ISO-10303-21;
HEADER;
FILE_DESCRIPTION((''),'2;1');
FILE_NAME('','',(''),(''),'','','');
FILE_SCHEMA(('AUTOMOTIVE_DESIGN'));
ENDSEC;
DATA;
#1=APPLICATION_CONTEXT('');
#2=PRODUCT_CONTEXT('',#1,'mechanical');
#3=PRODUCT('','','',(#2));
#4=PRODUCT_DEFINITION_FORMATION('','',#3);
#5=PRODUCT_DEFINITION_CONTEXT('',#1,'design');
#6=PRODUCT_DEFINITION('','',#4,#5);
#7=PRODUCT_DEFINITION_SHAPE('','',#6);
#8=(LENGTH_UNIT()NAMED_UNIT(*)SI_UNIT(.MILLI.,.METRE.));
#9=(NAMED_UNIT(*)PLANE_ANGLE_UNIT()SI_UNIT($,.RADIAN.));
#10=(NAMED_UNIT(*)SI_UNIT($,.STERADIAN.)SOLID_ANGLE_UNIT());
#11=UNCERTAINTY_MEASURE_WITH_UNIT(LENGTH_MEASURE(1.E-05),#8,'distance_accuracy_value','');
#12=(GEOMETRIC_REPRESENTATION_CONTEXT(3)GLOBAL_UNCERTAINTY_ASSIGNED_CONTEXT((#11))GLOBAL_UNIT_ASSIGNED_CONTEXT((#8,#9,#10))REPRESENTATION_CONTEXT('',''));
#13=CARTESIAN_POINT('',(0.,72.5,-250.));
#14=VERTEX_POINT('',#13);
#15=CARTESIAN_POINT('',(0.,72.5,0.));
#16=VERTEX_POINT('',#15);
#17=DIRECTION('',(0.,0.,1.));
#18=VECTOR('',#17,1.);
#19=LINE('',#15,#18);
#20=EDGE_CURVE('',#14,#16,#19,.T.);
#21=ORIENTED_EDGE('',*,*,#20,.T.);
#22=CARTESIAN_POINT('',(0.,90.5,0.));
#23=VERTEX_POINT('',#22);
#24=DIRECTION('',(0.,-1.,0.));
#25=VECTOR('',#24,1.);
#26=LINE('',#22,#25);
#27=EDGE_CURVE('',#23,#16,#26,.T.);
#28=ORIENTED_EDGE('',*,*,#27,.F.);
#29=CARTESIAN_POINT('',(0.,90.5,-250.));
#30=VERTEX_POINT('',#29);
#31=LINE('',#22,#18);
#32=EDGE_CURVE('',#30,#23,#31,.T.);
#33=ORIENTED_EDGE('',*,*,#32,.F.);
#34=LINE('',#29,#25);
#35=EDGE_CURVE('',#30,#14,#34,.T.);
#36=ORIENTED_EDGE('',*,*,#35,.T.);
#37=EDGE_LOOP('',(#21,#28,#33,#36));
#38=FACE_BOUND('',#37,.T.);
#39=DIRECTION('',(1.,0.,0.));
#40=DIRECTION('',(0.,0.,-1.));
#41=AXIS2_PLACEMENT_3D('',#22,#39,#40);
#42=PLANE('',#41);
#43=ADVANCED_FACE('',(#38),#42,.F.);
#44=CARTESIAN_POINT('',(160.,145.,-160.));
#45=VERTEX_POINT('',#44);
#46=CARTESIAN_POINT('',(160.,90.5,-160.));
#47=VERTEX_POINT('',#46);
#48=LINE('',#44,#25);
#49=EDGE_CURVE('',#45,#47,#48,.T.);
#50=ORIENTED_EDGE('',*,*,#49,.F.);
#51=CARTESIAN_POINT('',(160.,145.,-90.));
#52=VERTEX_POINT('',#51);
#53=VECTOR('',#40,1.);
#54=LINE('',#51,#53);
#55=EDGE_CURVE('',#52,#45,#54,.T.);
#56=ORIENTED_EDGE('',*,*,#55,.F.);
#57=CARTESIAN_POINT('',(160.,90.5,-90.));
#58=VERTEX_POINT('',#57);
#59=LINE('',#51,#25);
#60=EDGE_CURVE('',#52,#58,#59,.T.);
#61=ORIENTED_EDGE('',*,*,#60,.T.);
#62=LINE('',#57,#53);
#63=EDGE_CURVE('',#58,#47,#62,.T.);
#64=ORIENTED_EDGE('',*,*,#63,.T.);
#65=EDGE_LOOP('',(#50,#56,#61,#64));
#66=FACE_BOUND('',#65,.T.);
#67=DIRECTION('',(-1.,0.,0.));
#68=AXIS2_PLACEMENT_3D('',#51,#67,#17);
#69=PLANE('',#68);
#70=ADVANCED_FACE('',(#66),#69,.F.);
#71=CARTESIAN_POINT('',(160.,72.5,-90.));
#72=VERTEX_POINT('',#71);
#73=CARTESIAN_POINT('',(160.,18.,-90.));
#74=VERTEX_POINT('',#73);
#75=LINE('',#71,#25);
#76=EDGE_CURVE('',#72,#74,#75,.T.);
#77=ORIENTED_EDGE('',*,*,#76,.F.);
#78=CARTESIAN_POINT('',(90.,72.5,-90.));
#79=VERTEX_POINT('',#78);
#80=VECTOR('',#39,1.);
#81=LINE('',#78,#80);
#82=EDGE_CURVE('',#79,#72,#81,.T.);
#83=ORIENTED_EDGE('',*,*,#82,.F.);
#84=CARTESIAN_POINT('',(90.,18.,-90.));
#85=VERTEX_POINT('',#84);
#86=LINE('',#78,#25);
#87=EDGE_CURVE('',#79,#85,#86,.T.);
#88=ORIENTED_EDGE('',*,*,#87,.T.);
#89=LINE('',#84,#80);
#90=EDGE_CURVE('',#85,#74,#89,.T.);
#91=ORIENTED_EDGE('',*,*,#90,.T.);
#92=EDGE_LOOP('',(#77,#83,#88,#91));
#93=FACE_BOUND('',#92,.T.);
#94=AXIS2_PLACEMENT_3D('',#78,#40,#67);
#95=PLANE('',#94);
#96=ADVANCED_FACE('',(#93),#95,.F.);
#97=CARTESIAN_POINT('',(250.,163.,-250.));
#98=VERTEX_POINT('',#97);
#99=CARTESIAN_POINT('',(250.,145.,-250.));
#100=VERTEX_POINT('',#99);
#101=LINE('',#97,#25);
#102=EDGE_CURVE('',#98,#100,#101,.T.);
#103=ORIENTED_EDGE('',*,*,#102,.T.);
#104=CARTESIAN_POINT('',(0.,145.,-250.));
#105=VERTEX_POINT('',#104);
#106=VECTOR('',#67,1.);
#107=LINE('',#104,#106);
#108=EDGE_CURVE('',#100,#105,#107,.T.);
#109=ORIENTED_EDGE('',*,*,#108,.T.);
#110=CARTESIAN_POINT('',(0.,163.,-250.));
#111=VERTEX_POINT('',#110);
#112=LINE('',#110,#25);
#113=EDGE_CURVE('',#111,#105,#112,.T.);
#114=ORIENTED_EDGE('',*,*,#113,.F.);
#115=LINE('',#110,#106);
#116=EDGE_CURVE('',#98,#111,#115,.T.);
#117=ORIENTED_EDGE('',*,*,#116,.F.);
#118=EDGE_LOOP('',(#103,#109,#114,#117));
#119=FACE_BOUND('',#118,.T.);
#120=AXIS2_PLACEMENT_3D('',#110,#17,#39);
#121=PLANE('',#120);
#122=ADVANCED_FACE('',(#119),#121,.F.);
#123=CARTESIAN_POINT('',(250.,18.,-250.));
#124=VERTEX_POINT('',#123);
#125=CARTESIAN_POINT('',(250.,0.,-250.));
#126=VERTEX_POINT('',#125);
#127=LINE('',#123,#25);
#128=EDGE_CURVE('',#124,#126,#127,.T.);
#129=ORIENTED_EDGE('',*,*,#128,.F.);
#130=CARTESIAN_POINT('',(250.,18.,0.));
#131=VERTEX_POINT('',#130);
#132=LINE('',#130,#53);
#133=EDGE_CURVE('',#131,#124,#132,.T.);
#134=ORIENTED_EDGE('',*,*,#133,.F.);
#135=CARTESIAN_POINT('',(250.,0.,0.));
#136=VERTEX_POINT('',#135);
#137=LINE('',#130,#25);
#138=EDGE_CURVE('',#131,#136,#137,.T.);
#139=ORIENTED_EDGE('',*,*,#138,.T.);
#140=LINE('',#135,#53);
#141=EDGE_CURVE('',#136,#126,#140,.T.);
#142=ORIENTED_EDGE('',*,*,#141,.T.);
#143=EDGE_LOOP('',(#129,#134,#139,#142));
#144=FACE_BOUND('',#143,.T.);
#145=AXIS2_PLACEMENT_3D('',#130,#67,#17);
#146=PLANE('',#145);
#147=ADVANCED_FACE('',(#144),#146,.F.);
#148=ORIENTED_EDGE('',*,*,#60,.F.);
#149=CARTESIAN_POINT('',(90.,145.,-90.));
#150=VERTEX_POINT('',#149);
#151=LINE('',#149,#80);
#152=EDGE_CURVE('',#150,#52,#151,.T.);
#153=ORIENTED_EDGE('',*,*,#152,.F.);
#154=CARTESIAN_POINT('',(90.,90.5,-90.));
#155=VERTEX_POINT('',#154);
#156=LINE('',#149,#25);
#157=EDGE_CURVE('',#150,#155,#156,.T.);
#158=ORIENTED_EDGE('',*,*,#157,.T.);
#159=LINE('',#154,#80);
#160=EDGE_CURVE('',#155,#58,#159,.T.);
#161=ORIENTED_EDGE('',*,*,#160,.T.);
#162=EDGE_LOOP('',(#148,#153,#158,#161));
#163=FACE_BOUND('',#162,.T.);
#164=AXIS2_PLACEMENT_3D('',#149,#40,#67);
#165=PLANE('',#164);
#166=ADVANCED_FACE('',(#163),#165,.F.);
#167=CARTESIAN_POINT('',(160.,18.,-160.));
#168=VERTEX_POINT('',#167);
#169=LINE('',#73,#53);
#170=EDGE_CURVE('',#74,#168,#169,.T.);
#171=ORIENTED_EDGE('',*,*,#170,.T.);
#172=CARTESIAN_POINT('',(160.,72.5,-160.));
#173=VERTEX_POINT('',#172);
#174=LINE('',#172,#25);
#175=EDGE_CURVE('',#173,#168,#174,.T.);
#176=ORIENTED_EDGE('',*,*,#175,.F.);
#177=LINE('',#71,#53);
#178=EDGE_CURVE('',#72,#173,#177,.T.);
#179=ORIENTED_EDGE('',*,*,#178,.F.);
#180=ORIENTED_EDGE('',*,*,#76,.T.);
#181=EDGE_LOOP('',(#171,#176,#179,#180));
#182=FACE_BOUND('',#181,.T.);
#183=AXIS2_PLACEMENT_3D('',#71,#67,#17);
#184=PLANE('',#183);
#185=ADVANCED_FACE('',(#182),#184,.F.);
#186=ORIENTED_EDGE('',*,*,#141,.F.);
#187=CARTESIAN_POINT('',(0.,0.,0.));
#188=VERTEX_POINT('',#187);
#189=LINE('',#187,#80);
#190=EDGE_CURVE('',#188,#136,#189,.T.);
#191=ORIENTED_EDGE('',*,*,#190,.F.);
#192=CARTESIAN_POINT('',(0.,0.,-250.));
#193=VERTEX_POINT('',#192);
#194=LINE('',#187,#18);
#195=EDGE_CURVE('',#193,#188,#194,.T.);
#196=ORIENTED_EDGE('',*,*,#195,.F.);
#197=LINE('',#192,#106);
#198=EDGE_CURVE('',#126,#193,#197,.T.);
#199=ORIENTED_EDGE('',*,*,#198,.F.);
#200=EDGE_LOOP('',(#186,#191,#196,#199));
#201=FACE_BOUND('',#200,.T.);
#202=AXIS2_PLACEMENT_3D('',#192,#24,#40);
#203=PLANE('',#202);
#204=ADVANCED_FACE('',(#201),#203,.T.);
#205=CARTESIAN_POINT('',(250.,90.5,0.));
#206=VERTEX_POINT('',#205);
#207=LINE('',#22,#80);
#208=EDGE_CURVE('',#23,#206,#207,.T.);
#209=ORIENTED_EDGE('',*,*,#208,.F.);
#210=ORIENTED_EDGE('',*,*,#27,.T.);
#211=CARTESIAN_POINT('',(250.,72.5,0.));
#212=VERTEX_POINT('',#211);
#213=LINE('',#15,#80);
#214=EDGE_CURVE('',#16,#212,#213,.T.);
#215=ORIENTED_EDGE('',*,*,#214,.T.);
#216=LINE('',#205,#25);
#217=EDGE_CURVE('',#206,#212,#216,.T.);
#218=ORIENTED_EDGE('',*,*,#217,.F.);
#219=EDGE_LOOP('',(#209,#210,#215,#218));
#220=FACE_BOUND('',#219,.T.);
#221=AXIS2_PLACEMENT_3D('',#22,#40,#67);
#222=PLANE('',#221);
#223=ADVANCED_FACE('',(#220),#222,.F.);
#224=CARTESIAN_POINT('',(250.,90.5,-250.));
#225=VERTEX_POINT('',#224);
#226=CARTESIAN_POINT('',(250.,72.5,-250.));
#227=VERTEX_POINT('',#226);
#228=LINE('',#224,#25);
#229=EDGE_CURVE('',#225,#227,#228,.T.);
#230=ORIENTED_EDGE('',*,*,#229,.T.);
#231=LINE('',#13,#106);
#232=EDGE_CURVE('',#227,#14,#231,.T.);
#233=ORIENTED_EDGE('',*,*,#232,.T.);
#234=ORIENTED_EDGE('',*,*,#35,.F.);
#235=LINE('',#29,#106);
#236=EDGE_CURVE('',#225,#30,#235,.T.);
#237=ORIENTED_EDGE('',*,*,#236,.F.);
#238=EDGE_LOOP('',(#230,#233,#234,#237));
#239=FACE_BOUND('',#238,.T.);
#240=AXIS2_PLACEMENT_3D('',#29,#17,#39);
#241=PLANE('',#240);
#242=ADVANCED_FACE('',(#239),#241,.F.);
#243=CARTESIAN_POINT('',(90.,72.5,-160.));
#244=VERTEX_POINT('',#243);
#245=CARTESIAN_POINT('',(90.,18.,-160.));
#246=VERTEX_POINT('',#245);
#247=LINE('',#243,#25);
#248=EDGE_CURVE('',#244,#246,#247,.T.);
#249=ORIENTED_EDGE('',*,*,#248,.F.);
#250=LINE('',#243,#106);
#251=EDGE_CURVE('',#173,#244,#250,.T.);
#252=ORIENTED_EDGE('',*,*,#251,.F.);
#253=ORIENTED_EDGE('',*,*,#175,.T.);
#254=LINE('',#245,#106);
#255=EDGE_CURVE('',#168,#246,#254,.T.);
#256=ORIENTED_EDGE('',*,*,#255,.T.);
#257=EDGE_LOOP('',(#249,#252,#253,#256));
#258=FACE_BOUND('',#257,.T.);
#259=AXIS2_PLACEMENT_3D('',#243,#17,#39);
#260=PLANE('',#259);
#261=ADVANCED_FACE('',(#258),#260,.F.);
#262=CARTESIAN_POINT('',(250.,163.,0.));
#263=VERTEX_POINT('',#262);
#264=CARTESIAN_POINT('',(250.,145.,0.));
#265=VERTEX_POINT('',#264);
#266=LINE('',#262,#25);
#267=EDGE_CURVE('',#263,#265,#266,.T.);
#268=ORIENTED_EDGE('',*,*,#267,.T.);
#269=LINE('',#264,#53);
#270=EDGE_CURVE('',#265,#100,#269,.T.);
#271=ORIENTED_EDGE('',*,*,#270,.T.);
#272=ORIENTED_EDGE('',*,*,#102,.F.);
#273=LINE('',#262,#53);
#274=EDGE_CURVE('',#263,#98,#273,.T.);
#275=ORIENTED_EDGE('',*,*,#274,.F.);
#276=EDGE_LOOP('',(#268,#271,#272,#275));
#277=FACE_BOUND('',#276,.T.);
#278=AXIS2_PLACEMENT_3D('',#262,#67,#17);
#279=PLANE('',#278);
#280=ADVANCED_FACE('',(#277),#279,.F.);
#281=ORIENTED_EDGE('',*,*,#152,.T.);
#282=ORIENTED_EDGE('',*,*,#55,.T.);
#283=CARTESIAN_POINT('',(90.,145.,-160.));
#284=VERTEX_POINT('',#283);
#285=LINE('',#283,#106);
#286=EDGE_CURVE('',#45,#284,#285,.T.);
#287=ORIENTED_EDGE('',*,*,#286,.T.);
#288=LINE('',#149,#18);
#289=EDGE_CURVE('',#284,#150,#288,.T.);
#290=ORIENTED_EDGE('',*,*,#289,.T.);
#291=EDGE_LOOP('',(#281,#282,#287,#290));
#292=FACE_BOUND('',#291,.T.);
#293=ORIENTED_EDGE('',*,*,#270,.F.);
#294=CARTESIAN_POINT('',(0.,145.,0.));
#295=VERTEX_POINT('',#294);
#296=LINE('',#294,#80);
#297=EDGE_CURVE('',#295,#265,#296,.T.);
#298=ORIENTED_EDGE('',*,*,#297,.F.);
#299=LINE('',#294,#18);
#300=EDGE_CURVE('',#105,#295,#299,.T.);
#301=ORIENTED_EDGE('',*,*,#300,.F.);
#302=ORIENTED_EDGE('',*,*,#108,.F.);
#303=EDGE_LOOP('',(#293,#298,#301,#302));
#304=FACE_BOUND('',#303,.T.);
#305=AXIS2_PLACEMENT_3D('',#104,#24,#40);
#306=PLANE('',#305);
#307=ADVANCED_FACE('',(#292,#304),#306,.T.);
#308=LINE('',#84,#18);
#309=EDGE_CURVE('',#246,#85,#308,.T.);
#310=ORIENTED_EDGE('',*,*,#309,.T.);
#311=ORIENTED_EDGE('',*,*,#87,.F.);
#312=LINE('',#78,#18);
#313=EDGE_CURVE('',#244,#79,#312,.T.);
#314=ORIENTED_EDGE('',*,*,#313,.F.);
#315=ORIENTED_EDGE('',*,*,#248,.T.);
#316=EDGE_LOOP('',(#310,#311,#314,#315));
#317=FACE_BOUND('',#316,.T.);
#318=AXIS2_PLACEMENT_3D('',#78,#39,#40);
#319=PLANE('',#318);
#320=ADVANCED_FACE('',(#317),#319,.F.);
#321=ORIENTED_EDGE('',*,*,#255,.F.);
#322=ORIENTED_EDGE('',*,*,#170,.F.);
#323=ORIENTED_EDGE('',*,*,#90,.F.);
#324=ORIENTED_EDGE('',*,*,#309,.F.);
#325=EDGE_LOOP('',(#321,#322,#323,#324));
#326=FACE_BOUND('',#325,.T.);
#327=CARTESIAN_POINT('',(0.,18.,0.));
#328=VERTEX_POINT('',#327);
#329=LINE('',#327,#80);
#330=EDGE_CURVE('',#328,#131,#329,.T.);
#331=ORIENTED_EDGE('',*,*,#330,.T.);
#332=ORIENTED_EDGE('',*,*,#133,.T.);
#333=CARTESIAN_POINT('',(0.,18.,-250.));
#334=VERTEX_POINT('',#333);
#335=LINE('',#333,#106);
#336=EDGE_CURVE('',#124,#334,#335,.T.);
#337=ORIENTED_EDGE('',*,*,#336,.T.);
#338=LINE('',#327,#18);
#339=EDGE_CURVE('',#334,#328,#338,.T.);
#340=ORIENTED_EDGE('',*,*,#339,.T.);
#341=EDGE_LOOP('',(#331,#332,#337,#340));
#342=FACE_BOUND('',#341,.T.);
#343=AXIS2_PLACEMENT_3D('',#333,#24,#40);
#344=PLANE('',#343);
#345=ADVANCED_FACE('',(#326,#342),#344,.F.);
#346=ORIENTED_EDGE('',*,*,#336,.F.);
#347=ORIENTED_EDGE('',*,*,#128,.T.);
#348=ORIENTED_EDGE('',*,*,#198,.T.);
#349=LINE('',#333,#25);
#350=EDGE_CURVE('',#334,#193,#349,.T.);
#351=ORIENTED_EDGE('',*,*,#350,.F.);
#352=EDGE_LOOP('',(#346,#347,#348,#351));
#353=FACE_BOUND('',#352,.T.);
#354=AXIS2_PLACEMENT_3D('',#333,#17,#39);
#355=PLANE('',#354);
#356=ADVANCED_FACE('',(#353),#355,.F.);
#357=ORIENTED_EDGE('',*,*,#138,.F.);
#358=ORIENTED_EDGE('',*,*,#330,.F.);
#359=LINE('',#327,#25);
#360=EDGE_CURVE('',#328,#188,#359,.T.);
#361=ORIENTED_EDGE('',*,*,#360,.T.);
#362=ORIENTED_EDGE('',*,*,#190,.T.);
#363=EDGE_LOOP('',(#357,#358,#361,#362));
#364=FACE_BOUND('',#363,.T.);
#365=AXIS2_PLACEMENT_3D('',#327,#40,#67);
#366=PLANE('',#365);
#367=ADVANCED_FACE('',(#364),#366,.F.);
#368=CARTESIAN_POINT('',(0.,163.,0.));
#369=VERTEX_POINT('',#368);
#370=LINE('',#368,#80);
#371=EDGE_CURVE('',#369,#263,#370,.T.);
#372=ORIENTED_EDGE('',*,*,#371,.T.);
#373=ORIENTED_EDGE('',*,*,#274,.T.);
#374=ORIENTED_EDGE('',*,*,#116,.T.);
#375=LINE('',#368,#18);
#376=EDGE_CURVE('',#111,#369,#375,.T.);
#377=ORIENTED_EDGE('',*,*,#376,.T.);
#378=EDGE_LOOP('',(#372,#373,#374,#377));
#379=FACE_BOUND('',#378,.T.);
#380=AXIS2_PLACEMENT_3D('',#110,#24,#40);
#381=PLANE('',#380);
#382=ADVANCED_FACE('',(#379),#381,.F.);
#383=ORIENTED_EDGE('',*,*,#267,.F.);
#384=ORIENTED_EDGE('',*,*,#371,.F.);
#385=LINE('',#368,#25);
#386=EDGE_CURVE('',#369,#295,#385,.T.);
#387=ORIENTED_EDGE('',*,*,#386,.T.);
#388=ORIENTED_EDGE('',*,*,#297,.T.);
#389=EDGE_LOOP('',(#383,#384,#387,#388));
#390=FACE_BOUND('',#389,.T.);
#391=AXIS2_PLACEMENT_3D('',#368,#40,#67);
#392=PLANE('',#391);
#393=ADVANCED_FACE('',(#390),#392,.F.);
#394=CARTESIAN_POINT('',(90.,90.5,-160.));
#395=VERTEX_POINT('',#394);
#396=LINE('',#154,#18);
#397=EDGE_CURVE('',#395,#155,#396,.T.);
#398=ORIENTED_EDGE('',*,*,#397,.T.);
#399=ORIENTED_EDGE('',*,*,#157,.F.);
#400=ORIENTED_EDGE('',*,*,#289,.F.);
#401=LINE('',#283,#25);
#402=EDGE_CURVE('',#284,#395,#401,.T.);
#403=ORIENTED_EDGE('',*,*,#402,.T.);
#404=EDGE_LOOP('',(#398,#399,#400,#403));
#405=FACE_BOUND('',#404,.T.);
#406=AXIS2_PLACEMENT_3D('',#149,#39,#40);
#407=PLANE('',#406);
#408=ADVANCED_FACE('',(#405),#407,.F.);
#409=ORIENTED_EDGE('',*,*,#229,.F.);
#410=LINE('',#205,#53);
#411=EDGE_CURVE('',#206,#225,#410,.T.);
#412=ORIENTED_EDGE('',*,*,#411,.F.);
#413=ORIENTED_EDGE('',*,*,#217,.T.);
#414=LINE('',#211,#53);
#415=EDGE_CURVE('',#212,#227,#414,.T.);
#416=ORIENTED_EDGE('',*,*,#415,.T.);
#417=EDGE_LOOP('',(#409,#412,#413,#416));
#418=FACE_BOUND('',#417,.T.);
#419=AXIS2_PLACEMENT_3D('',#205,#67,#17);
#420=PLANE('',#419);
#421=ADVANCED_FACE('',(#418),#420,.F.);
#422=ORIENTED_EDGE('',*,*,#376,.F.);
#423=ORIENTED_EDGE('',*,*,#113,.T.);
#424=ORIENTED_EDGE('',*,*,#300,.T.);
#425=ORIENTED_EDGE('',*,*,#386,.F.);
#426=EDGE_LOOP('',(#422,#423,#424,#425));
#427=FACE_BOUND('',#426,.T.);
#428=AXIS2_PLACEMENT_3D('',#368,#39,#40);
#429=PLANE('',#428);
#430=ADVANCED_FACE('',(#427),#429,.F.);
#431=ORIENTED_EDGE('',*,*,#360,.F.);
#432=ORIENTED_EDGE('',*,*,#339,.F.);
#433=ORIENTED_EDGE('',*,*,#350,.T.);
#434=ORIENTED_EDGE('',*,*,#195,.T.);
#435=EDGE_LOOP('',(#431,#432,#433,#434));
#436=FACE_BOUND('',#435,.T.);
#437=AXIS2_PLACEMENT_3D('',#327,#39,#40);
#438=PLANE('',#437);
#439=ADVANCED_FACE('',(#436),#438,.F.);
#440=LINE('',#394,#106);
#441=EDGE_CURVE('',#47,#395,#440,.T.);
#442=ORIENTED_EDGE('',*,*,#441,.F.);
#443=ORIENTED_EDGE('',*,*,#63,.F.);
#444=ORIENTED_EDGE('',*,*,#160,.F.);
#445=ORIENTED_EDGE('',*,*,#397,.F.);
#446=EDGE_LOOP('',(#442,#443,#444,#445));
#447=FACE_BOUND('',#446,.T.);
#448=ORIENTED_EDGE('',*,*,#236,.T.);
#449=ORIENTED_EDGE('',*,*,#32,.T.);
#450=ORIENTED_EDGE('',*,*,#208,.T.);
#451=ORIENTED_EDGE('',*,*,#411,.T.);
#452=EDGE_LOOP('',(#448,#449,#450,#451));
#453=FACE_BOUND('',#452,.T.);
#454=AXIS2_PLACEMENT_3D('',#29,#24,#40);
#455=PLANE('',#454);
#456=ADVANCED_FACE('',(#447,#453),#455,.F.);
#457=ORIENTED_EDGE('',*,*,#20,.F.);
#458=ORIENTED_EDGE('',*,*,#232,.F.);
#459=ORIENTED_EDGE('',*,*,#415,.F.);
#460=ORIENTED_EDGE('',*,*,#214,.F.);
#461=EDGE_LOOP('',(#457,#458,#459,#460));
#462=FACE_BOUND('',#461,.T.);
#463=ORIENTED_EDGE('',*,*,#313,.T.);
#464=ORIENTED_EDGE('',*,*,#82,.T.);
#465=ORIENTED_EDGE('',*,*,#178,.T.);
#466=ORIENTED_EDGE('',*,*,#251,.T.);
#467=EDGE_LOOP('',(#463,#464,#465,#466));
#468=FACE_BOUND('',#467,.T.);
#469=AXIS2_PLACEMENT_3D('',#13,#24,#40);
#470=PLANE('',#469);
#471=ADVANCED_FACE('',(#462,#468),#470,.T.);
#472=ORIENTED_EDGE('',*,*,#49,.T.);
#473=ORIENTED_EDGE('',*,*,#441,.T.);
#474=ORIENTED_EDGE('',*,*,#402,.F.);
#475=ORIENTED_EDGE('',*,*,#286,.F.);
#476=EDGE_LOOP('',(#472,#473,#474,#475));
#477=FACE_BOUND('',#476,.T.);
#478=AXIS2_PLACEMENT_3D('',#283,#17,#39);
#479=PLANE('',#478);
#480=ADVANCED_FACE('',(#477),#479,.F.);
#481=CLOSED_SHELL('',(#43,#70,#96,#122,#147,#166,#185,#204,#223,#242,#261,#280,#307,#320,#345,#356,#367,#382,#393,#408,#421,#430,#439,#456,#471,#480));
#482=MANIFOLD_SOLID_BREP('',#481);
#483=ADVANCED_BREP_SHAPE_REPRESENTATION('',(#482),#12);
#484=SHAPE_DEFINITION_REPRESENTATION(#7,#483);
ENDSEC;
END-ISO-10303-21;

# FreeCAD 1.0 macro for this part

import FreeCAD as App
import Part
import Sketcher
Q = App.Units.Quantity


def add_polygon(sketch, points):
    """Adds a closed chain of lines whose ends are joined by coincident constraints."""
    first, n = sketch.GeometryCount, len(points)
    for a, b in zip(points, points[1:] + points[:1]):
        sketch.addGeometry(Part.LineSegment(App.Vector(*a, 0), App.Vector(*b, 0)), False)
    for i in range(n):
        sketch.addConstraint(Sketcher.Constraint("Coincident", first + i, 2, first + (i + 1) % n, 1))

doc = App.newDocument("Part")
body = doc.addObject("PartDesign::Body", "Body")

sketch1 = doc.addObject("Sketcher::SketchObject", "Sketch")
body.addObject(sketch1)
sketch1.AttachmentSupport = (doc.XZ_Plane, [""])
sketch1.MapMode = "FlatFace"
add_polygon(sketch1, [(0, -250), (0, 0), (250, 0), (250, -250)])
sketch1.addConstraint([
    Sketcher.Constraint("Vertical", 0),
    Sketcher.Constraint("Horizontal", 1),
    Sketcher.Constraint("Vertical", 2),
    Sketcher.Constraint("Horizontal", 3),
    Sketcher.Constraint("Coincident", 0, 2, -1, 1),
    Sketcher.Constraint("Equal", 3, 0),
    Sketcher.Constraint("DistanceX", 1, 1, 1, 2, Q("250 mm")),
])
pad1 = doc.addObject("PartDesign::Pad", "Pad")
body.addObject(pad1)
pad1.Profile = sketch1
pad1.Length = 18
pad1.Reversed = True

sketch2 = doc.addObject("Sketcher::SketchObject", "Sketch001")
body.addObject(sketch2)
sketch2.AttachmentSupport = (doc.XZ_Plane, [""])
sketch2.MapMode = "FlatFace"
sketch2.AttachmentOffset = App.Placement(App.Vector(0, 0, -18), App.Rotation())
add_polygon(sketch2, [(160, -90), (160, -160), (90, -160), (90, -90)])
sketch2.addConstraint([
    Sketcher.Constraint("Vertical", 0),
    Sketcher.Constraint("Horizontal", 1),
    Sketcher.Constraint("Vertical", 2),
    Sketcher.Constraint("Horizontal", 3),
    Sketcher.Constraint("Equal", 3, 0),
    Sketcher.Constraint("DistanceX", 1, 2, 1, 1, Q("70 mm")),
    Sketcher.Constraint("DistanceX", -1, 1, 0, 2, Q("160 mm")),
    Sketcher.Constraint("DistanceY", 0, 2, -1, 1, Q("160 mm")),
])
pad2 = doc.addObject("PartDesign::Pad", "Pad001")
body.addObject(pad2)
pad2.Profile = sketch2
pad2.Length = 54.5
pad2.Reversed = True

sketch3 = doc.addObject("Sketcher::SketchObject", "Sketch002")
body.addObject(sketch3)
sketch3.AttachmentSupport = (doc.XZ_Plane, [""])
sketch3.MapMode = "FlatFace"
sketch3.AttachmentOffset = App.Placement(App.Vector(0, 0, -72.5), App.Rotation())
add_polygon(sketch3, [(0, -250), (0, 0), (250, 0), (250, -250)])
sketch3.addConstraint([
    Sketcher.Constraint("Vertical", 0),
    Sketcher.Constraint("Horizontal", 1),
    Sketcher.Constraint("Vertical", 2),
    Sketcher.Constraint("Horizontal", 3),
    Sketcher.Constraint("Coincident", 0, 2, -1, 1),
    Sketcher.Constraint("Equal", 3, 0),
    Sketcher.Constraint("DistanceX", 1, 1, 1, 2, Q("250 mm")),
])
pad3 = doc.addObject("PartDesign::Pad", "Pad002")
body.addObject(pad3)
pad3.Profile = sketch3
pad3.Length = 18
pad3.Reversed = True

sketch4 = doc.addObject("Sketcher::SketchObject", "Sketch003")
body.addObject(sketch4)
sketch4.AttachmentSupport = (doc.XZ_Plane, [""])
sketch4.MapMode = "FlatFace"
sketch4.AttachmentOffset = App.Placement(App.Vector(0, 0, -90.5), App.Rotation())
add_polygon(sketch4, [(90, -160), (90, -90), (160, -90), (160, -160)])
sketch4.addConstraint([
    Sketcher.Constraint("Vertical", 0),
    Sketcher.Constraint("Horizontal", 1),
    Sketcher.Constraint("Vertical", 2),
    Sketcher.Constraint("Horizontal", 3),
    Sketcher.Constraint("Equal", 3, 0),
    Sketcher.Constraint("DistanceX", 1, 1, 1, 2, Q("70 mm")),
    Sketcher.Constraint("DistanceX", -1, 1, 0, 2, Q("90 mm")),
    Sketcher.Constraint("DistanceY", 0, 2, -1, 1, Q("90 mm")),
])
pad4 = doc.addObject("PartDesign::Pad", "Pad003")
body.addObject(pad4)
pad4.Profile = sketch4
pad4.Length = 54.5
pad4.Reversed = True

sketch5 = doc.addObject("Sketcher::SketchObject", "Sketch004")
body.addObject(sketch5)
sketch5.AttachmentSupport = (doc.XZ_Plane, [""])
sketch5.MapMode = "FlatFace"
sketch5.AttachmentOffset = App.Placement(App.Vector(0, 0, -145), App.Rotation())
add_polygon(sketch5, [(0, -250), (0, 0), (250, 0), (250, -250)])
sketch5.addConstraint([
    Sketcher.Constraint("Vertical", 0),
    Sketcher.Constraint("Horizontal", 1),
    Sketcher.Constraint("Vertical", 2),
    Sketcher.Constraint("Horizontal", 3),
    Sketcher.Constraint("Coincident", 0, 2, -1, 1),
    Sketcher.Constraint("Equal", 3, 0),
    Sketcher.Constraint("DistanceX", 1, 1, 1, 2, Q("250 mm")),
])
pad5 = doc.addObject("PartDesign::Pad", "Pad004")
body.addObject(pad5)
pad5.Profile = sketch5
pad5.Length = 18
pad5.Reversed = True

doc.recompute()
